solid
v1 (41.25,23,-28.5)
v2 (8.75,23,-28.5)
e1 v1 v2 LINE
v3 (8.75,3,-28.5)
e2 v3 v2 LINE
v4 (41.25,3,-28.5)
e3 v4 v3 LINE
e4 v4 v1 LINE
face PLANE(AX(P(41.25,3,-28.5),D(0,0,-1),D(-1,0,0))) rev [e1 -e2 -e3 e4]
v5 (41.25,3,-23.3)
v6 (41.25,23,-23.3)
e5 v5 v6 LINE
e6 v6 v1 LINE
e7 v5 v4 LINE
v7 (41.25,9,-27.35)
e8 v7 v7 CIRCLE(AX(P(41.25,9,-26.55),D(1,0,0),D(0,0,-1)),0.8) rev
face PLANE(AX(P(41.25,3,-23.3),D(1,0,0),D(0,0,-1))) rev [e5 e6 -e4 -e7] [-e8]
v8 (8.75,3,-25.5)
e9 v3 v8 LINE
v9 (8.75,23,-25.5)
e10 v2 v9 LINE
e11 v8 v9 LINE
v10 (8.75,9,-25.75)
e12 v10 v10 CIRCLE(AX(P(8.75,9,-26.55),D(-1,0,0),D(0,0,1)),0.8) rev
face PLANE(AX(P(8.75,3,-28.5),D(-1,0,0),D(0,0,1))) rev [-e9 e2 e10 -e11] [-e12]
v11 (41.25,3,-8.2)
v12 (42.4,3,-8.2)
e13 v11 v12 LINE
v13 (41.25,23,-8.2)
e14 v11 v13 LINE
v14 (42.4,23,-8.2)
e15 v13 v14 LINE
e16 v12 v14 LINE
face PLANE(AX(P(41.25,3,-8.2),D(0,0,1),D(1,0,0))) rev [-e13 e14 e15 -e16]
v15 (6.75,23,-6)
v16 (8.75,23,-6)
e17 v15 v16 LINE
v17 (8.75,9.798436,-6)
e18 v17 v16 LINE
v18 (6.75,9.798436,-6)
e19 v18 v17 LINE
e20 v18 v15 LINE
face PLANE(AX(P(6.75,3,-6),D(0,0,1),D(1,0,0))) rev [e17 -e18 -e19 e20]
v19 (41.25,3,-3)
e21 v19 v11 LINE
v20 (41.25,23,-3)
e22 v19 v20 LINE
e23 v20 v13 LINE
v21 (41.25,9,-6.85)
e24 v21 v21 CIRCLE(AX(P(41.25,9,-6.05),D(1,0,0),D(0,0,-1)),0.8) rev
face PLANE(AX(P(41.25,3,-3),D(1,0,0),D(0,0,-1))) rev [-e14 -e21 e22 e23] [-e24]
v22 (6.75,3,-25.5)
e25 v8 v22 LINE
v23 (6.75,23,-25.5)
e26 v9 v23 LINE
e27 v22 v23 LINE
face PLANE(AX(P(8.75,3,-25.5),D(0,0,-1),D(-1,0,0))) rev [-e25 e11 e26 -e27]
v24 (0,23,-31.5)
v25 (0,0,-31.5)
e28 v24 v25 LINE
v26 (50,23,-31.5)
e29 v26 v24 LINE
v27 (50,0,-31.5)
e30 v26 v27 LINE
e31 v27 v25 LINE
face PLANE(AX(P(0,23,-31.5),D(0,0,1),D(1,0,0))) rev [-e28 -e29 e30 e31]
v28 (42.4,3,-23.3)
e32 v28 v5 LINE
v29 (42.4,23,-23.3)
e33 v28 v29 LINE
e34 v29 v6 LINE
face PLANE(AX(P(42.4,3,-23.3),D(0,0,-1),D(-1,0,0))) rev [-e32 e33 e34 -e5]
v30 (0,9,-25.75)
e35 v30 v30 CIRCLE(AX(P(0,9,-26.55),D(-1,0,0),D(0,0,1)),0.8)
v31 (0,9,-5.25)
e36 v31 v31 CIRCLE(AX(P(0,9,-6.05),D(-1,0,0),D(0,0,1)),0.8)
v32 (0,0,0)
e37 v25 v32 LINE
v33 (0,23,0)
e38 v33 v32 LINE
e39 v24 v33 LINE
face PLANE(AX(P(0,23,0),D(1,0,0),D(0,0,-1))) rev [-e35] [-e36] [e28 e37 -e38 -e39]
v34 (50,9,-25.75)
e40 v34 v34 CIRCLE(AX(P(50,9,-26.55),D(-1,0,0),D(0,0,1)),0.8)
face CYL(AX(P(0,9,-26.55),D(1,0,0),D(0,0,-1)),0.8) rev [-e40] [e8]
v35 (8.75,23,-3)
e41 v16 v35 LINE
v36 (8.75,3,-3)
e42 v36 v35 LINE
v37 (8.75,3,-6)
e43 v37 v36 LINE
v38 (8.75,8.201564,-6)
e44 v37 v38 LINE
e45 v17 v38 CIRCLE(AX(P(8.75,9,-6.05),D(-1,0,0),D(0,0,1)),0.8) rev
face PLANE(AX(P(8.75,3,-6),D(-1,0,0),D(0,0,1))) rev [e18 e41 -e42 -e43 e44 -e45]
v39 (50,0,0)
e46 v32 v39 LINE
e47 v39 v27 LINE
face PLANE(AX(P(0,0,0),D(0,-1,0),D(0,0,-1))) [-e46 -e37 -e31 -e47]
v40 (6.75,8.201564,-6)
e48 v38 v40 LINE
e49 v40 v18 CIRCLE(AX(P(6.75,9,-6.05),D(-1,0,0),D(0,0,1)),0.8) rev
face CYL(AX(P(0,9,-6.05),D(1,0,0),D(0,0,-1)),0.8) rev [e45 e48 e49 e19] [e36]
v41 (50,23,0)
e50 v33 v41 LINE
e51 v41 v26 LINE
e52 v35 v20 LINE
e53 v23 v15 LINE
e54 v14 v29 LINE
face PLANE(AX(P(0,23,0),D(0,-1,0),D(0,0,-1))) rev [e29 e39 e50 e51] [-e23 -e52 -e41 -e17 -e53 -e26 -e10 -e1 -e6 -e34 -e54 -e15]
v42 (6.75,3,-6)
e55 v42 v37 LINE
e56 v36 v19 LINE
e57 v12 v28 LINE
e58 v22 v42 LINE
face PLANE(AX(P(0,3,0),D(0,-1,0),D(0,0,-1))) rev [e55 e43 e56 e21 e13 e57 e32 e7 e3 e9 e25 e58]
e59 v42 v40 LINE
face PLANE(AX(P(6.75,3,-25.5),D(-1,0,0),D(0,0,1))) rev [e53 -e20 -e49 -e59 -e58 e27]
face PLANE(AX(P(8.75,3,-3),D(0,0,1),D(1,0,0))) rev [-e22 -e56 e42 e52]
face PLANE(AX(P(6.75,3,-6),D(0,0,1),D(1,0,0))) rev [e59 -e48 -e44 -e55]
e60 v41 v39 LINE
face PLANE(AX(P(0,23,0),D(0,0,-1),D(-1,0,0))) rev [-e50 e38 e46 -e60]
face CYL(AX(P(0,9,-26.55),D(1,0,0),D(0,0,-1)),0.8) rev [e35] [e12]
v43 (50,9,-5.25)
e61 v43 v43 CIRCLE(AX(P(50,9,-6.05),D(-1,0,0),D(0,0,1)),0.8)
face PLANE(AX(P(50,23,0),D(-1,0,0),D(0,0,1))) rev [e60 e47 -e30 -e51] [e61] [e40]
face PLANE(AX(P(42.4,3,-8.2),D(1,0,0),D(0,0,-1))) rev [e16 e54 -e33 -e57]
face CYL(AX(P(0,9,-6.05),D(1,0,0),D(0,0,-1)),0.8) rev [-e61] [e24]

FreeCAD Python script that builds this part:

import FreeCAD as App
import Part
import Sketcher

V = App.Vector
Q = App.Units.Quantity


def add_polygon(sketch, points):
    """Adds a closed chain of lines whose ends are joined by coincident constraints."""
    first, n = sketch.GeometryCount, len(points)
    for a, b in zip(points, points[1:] + points[:1]):
        sketch.addGeometry(Part.LineSegment(App.Vector(*a, 0), App.Vector(*b, 0)), False)
    for i in range(n):
        sketch.addConstraint(Sketcher.Constraint("Coincident", first + i, 2, first + (i + 1) % n, 1))

doc = App.newDocument("Part")
body = doc.addObject("PartDesign::Body", "Body")

# Sketch on XZ plane
sketch1 = body.newObject("Sketcher::SketchObject", "Sketch")
sketch1.AttachmentSupport = (doc.getObject("XZ_Plane"), [""])
sketch1.MapMode = "FlatFace"
add_polygon(sketch1, [(0, -32), (0, 0), (50, 0), (50, -32)])  # lines 0-3
sketch1.addConstraint(Sketcher.Constraint("Vertical", 0))
sketch1.addConstraint(Sketcher.Constraint("Horizontal", 1))
sketch1.addConstraint(Sketcher.Constraint("Vertical", 2))
sketch1.addConstraint(Sketcher.Constraint("Horizontal", 3))
sketch1.addConstraint(Sketcher.Constraint("Coincident", 0, 2, -1, 1))
sketch1.addConstraint(Sketcher.Constraint("DistanceX", 1, 1, 1, 2, Q("50 mm")))
sketch1.addConstraint(Sketcher.Constraint("DistanceY", 0, 1, 0, 2, Q("31.5 mm")))
pad1 = body.newObject("PartDesign::Pad", "Pad")
pad1.Profile = sketch1
pad1.Length = 23
pad1.Reversed = True

# Sketch on XZ plane
sketch2 = body.newObject("Sketcher::SketchObject", "Sketch001")
sketch2.AttachmentSupport = (doc.getObject("XZ_Plane"), [""])
sketch2.MapMode = "FlatFace"
sketch2.AttachmentOffset = App.Placement(V(0, 0, -23), App.Rotation())
add_polygon(sketch2, [(41.2, -28.5), (8.8, -28.5), (8.8, -25.5), (6.8, -25.5), (6.8, -6), (8.8, -6), (8.8, -3), (41.2, -3), (41.2, -8.2), (42.4, -8.2), (42.4, -23.3), (41.2, -23.3)])  # lines 0-11
sketch2.addConstraint(Sketcher.Constraint("Horizontal", 0))
sketch2.addConstraint(Sketcher.Constraint("Vertical", 1))
sketch2.addConstraint(Sketcher.Constraint("Horizontal", 2))
sketch2.addConstraint(Sketcher.Constraint("Vertical", 3))
sketch2.addConstraint(Sketcher.Constraint("Horizontal", 4))
sketch2.addConstraint(Sketcher.Constraint("Vertical", 5))
sketch2.addConstraint(Sketcher.Constraint("Horizontal", 6))
sketch2.addConstraint(Sketcher.Constraint("Vertical", 7))
sketch2.addConstraint(Sketcher.Constraint("Horizontal", 8))
sketch2.addConstraint(Sketcher.Constraint("Vertical", 9))
sketch2.addConstraint(Sketcher.Constraint("Horizontal", 10))
sketch2.addConstraint(Sketcher.Constraint("Vertical", 11))
sketch2.addConstraint(Sketcher.Constraint("Vertical", 1, 2, 4, 2))
sketch2.addConstraint(Sketcher.Constraint("Vertical", 7, 2, 10, 2))
sketch2.addConstraint(Sketcher.Constraint("Equal", 1, 5))
sketch2.addConstraint(Sketcher.Constraint("Equal", 7, 11))
sketch2.addConstraint(Sketcher.Constraint("DistanceX", 2, 2, 2, 1, Q("2 mm")))
sketch2.addConstraint(Sketcher.Constraint("DistanceY", 1, 1, 1, 2, Q("3 mm")))
sketch2.addConstraint(Sketcher.Constraint("DistanceX", 0, 2, 0, 1, Q("32.5 mm")))
sketch2.addConstraint(Sketcher.Constraint("DistanceY", 3, 1, 3, 2, Q("19.5 mm")))
sketch2.addConstraint(Sketcher.Constraint("DistanceY", 7, 2, 7, 1, Q("5.2 mm")))
sketch2.addConstraint(Sketcher.Constraint("DistanceY", 3, 2, -1, 1, Q("6 mm")))
sketch2.addConstraint(Sketcher.Constraint("DistanceX", 8, 1, 8, 2, Q("1.15 mm")))
sketch2.addConstraint(Sketcher.Constraint("DistanceX", -1, 1, 8, 2, Q("42.4 mm")))
pocket1 = body.newObject("PartDesign::Pocket", "Pocket")
pocket1.Profile = sketch2
pocket1.Length = 20
pocket1.Reversed = True

# Sketch on YZ plane
sketch3 = body.newObject("Sketcher::SketchObject", "Sketch002")
sketch3.AttachmentSupport = (doc.getObject("YZ_Plane"), [""])
sketch3.MapMode = "FlatFace"
sketch3.AttachmentOffset = App.Placement(V(0, 0, 41.25), App.Rotation())
sketch3.addGeometry(Part.Circle(V(9, -26.6, 0), V(0, 0, 1), 0.8), False)
sketch3.addGeometry(Part.Circle(V(9, -6, 0), V(0, 0, 1), 0.8), False)
sketch3.addConstraint(Sketcher.Constraint("Equal", 0, 1))
sketch3.addConstraint(Sketcher.Constraint("Vertical", 0, 3, 1, 3))
sketch3.addConstraint(Sketcher.Constraint("Diameter", 0, Q("1.6 mm")))
sketch3.addConstraint(Sketcher.Constraint("DistanceX", -1, 1, 0, 3, Q("9 mm")))
sketch3.addConstraint(Sketcher.Constraint("DistanceY", 0, 3, 1, 3, Q("20.5 mm")))
sketch3.addConstraint(Sketcher.Constraint("DistanceY", 0, 3, -1, 1, Q("26.55 mm")))
pocket2 = body.newObject("PartDesign::Pocket", "Pocket001")
pocket2.Profile = sketch3
pocket2.Type = "ThroughAll"
pocket2.Midplane = True

doc.recompute()
